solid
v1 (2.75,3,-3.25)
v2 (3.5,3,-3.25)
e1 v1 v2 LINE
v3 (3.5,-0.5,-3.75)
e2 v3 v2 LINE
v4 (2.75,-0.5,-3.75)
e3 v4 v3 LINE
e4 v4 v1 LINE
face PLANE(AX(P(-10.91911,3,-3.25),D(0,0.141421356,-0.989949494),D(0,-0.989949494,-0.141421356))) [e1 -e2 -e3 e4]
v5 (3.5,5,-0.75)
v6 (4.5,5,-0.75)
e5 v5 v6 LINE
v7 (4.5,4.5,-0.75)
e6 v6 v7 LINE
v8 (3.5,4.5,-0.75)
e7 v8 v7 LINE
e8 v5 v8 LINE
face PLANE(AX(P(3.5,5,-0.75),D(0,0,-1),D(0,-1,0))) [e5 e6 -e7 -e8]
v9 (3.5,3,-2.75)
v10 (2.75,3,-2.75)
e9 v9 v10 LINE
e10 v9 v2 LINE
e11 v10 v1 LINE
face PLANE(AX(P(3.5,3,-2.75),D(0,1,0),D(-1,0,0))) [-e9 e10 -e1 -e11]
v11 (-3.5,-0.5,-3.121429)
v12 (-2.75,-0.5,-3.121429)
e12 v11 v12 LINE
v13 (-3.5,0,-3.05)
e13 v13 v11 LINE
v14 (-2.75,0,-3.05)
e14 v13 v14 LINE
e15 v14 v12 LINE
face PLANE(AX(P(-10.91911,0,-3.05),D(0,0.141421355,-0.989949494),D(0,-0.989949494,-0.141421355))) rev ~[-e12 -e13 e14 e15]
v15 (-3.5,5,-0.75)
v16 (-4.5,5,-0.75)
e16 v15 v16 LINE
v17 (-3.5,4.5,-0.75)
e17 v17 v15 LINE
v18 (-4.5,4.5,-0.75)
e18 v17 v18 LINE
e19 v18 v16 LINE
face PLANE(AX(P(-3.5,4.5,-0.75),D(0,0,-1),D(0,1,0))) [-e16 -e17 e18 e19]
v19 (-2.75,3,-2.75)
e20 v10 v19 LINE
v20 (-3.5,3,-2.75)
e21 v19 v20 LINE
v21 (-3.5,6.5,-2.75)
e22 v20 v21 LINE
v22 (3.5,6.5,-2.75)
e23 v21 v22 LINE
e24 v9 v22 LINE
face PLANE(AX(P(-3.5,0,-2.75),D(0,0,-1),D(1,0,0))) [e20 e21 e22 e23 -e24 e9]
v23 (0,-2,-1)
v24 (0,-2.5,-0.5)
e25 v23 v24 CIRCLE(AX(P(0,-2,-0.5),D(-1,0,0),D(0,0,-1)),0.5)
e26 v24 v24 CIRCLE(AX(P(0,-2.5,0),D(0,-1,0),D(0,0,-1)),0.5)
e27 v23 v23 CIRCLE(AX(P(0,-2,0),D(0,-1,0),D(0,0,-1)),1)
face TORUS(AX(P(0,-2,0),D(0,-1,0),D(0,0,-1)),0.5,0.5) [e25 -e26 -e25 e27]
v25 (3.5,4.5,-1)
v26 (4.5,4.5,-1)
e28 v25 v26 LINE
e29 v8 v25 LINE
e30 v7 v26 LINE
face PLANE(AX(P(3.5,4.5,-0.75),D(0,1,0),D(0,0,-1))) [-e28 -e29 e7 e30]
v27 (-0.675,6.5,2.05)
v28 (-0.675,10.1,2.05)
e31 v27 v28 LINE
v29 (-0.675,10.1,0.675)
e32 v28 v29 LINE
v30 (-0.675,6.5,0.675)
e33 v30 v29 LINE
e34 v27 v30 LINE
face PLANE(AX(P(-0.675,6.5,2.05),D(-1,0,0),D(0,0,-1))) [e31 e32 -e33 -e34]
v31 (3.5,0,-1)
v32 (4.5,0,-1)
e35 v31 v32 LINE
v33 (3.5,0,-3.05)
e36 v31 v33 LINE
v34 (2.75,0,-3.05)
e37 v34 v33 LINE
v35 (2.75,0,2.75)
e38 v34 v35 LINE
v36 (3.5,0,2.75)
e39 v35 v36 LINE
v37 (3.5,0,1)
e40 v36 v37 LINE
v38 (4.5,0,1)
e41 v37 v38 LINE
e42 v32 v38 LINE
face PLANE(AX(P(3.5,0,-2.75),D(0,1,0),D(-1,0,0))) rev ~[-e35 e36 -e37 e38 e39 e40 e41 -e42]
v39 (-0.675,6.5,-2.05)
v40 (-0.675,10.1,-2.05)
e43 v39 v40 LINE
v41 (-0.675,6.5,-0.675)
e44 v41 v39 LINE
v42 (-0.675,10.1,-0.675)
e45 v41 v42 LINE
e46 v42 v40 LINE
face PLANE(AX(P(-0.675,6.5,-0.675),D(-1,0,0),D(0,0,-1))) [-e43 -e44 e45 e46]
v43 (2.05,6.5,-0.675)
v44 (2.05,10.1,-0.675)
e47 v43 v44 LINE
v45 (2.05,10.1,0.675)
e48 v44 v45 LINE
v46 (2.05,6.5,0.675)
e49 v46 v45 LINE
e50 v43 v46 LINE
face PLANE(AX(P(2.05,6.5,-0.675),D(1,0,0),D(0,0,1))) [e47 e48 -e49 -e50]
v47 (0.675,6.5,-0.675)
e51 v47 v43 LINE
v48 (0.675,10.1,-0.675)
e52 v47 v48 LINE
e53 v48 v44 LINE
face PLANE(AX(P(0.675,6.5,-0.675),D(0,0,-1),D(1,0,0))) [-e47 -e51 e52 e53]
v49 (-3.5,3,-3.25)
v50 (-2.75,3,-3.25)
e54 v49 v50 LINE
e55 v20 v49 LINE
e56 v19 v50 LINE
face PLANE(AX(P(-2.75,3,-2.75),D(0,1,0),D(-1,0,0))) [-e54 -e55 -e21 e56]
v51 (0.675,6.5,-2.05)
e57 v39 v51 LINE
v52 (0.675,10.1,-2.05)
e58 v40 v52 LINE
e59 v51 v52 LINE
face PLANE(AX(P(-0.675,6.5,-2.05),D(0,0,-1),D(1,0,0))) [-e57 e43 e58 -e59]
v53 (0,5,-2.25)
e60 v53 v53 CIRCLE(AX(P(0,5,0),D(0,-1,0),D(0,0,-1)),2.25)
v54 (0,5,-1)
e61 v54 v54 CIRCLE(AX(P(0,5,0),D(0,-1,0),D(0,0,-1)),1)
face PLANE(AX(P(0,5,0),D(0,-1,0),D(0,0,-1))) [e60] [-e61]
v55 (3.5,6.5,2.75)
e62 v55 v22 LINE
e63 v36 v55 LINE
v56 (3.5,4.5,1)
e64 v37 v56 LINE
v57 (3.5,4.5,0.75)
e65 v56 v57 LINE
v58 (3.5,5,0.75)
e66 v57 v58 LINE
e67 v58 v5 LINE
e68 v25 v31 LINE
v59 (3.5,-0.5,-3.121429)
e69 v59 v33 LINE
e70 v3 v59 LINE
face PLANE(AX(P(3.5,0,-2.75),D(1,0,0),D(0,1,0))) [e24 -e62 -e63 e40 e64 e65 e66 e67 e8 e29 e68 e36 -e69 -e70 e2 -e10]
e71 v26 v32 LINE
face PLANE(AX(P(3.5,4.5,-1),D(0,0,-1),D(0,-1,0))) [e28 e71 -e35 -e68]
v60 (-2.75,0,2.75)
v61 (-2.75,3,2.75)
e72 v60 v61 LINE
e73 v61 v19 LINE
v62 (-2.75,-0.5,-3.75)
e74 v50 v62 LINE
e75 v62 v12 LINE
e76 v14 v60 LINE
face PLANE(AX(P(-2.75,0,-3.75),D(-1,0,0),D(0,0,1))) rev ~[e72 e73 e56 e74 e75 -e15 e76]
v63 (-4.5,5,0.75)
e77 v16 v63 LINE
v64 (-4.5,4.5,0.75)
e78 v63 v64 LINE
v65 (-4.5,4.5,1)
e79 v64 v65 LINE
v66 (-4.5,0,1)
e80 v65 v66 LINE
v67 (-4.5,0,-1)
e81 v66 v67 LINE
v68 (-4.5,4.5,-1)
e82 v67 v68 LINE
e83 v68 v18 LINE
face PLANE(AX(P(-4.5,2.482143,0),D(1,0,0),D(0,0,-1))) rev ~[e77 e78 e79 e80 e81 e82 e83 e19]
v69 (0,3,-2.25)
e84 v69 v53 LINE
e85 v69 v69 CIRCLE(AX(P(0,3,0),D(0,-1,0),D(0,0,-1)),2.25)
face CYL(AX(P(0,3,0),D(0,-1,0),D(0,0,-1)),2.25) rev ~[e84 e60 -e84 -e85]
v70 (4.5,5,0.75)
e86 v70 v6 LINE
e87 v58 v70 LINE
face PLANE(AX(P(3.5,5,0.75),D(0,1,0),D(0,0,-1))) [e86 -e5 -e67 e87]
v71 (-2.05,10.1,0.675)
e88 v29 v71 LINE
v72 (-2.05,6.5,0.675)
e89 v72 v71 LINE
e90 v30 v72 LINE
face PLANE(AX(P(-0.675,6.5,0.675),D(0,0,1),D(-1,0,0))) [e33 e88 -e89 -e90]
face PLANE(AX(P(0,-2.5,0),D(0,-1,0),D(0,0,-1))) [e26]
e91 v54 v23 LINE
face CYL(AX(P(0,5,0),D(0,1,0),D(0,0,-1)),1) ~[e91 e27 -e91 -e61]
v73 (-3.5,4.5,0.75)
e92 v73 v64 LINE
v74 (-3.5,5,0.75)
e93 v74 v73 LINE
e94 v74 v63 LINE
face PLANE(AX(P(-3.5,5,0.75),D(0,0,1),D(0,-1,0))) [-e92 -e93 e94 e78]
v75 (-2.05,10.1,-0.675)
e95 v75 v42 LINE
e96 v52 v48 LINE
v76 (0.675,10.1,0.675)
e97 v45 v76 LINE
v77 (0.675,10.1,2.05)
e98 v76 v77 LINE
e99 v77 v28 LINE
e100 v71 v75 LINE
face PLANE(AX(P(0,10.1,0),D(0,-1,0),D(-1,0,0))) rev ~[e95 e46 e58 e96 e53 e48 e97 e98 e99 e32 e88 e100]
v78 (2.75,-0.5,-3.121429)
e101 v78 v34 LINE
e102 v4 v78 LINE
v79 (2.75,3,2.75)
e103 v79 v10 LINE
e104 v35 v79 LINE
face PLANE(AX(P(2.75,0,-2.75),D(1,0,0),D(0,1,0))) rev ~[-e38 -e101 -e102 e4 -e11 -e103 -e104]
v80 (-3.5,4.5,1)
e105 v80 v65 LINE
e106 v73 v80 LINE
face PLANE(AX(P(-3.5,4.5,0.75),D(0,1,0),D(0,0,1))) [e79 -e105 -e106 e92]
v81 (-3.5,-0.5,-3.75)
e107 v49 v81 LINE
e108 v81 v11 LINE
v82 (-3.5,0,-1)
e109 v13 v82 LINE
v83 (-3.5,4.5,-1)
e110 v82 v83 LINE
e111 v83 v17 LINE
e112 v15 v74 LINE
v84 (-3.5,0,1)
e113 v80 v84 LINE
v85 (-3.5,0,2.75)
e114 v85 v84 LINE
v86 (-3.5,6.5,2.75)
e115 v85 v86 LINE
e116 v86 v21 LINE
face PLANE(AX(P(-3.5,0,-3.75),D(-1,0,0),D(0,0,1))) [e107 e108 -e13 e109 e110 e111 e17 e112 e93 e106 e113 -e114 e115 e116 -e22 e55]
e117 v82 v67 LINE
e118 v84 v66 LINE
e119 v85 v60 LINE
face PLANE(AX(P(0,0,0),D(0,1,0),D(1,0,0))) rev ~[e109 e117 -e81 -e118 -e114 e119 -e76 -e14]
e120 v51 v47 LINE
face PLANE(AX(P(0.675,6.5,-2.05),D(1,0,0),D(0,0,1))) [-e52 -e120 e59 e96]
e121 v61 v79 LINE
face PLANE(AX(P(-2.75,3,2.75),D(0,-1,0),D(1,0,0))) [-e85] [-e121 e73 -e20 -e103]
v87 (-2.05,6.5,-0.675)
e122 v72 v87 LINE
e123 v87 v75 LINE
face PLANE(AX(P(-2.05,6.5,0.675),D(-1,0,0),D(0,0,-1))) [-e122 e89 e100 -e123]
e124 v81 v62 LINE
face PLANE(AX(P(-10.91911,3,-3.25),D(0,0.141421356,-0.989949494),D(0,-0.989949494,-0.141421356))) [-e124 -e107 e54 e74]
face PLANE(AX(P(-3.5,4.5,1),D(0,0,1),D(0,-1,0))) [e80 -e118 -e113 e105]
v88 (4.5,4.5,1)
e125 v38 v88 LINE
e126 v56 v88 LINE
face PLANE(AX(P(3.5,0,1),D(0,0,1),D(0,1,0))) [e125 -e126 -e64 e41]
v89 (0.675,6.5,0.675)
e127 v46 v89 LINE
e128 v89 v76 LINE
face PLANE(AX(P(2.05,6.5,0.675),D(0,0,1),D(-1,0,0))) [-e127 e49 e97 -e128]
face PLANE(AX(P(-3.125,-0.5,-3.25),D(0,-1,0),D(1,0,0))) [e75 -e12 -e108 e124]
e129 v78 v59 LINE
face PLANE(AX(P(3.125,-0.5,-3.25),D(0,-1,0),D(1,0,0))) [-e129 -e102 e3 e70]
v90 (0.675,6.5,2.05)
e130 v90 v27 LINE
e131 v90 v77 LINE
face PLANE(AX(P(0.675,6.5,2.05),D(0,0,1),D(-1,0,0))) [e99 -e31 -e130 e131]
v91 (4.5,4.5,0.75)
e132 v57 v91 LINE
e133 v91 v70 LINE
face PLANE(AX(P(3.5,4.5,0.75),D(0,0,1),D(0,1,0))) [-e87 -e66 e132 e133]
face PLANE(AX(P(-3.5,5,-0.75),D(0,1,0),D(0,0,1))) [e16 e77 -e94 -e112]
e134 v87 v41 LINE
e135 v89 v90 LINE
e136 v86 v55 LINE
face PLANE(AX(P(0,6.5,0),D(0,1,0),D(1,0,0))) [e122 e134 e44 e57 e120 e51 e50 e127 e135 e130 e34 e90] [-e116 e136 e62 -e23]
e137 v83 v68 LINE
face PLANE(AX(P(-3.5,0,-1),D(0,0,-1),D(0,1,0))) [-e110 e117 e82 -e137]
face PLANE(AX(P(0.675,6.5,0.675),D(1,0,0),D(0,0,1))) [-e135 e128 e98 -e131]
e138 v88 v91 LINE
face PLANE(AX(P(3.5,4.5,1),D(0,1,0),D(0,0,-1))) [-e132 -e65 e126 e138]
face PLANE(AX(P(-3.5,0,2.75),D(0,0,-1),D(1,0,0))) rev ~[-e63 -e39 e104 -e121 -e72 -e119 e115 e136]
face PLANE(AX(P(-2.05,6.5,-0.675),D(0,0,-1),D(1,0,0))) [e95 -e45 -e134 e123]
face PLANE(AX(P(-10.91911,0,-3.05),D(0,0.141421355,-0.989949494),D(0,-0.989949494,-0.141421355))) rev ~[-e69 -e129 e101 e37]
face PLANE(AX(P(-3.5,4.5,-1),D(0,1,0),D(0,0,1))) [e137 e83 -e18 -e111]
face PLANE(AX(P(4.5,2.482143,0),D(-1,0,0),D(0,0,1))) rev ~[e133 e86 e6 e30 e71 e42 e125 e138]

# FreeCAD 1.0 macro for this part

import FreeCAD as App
import Part
import Sketcher
from FreeCAD import Vector
Q = App.Units.Quantity


def edges_at(feature, points):
    """Names of the edges that pass closest to the given points."""
    edges = feature.Shape.Edges
    near = lambda p: min(range(len(edges)), key=lambda i: edges[i].distToShape(Part.Vertex(*p))[0])
    return sorted({f"Edge{near(p) + 1}" for p in points})


def add_polygon(sketch, points):
    """Adds a closed chain of lines whose ends are joined by coincident constraints."""
    first, n = sketch.GeometryCount, len(points)
    for a, b in zip(points, points[1:] + points[:1]):
        sketch.addGeometry(Part.LineSegment(App.Vector(*a, 0), App.Vector(*b, 0)), False)
    for i in range(n):
        sketch.addConstraint(Sketcher.Constraint("Coincident", first + i, 2, first + (i + 1) % n, 1))

doc = App.newDocument("Part")
body = doc.addObject("PartDesign::Body", "Body")

# Sketch on XZ plane
sketch1 = body.newObject("Sketcher::SketchObject", "Sketch")
sketch1.AttachmentSupport = (doc.getObject("XZ_Plane"), [""])
sketch1.MapMode = "FlatFace"
add_polygon(sketch1, [(-4, -3), (-4, 3), (4, 3), (4, -3)])  # lines 0-3
sketch1.addConstraint([
    Sketcher.Constraint("Vertical", 0),
    Sketcher.Constraint("Horizontal", 1),
    Sketcher.Constraint("Vertical", 2),
    Sketcher.Constraint("Horizontal", 3),
    Sketcher.Constraint("Symmetric", 0, 2, 2, 2, -1, 1),
    Sketcher.Constraint("DistanceX", 1, 1, 1, 2, Q("7 mm")),
    Sketcher.Constraint("DistanceY", 0, 1, 0, 2, Q("5.5 mm")),
])
pad1 = body.newObject("PartDesign::Pad", "Pad")
pad1.Profile = sketch1
pad1.Length = 6.5
pad1.Reversed = True

# Sketch on XY plane
sketch2 = body.newObject("Sketcher::SketchObject", "Sketch001")
sketch2.AttachmentSupport = (doc.getObject("XY_Plane"), [""])
sketch2.MapMode = "FlatFace"
sketch2.AttachmentOffset = App.Placement(Vector(0, 0, 2.75), App.Rotation())
add_polygon(sketch2, [(-2.8, 3), (-2.8, 0), (2.8, 0), (2.8, 3)])  # lines 0-3
sketch2.addConstraint([
    Sketcher.Constraint("Vertical", 0),
    Sketcher.Constraint("Horizontal", 1),
    Sketcher.Constraint("Vertical", 2),
    Sketcher.Constraint("Horizontal", 3),
    Sketcher.Constraint("Symmetric", 0, 2, 1, 2, -1, 1),
    Sketcher.Constraint("DistanceY", 0, 2, 0, 1, Q("3 mm")),
    Sketcher.Constraint("DistanceX", 1, 1, 1, 2, Q("5.5 mm")),
])
pocket1 = body.newObject("PartDesign::Pocket", "Pocket")
pocket1.Profile = sketch2
pocket1.Type = "ThroughAll"

# Sketch on YZ plane
sketch3 = body.newObject("Sketcher::SketchObject", "Sketch002")
sketch3.AttachmentSupport = (doc.getObject("YZ_Plane"), [""])
sketch3.MapMode = "FlatFace"
sketch3.AttachmentOffset = App.Placement(Vector(0, 0, -3.5), App.Rotation())
add_polygon(sketch3, [(4.5, -0.75), (4.5, -1), (0, -1), (0, 1), (4.5, 1), (4.5, 0.75), (5, 0.75), (5, -0.75)])  # lines 0-7
sketch3.addConstraint([
    Sketcher.Constraint("Vertical", 0),
    Sketcher.Constraint("Horizontal", 1),
    Sketcher.Constraint("Vertical", 2),
    Sketcher.Constraint("Horizontal", 3),
    Sketcher.Constraint("Vertical", 4),
    Sketcher.Constraint("Horizontal", 5),
    Sketcher.Constraint("Vertical", 6),
    Sketcher.Constraint("Horizontal", 7),
    Sketcher.Constraint("Symmetric", 1, 2, 2, 2, -1, 1),
    Sketcher.Constraint("Symmetric", 4, 2, 7, 2, -1),
    Sketcher.Constraint("DistanceY", 2, 1, 2, 2, Q("2 mm")),
    Sketcher.Constraint("DistanceX", 1, 2, 1, 1, Q("4.5 mm")),
    Sketcher.Constraint("DistanceX", 5, 1, 5, 2, Q("0.5 mm")),
    Sketcher.Constraint("DistanceY", 6, 2, 6, 1, Q("1.5 mm")),
])
pad2 = body.newObject("PartDesign::Pad", "Pad001")
pad2.Profile = sketch3
pad2.Length = 1
pad2.Reversed = True

# Sketch on YZ plane
sketch4 = body.newObject("Sketcher::SketchObject", "Sketch003")
sketch4.AttachmentSupport = (doc.getObject("YZ_Plane"), [""])
sketch4.MapMode = "FlatFace"
sketch4.AttachmentOffset = App.Placement(Vector(0, 0, 3.5), App.Rotation())
add_polygon(sketch4, [(4.5, 1), (0, 1), (0, -1), (4.5, -1), (4.5, -0.75), (5, -0.75), (5, 0.75), (4.5, 0.75)])  # lines 0-7
sketch4.addConstraint([
    Sketcher.Constraint("Horizontal", 0),
    Sketcher.Constraint("Vertical", 1),
    Sketcher.Constraint("Horizontal", 2),
    Sketcher.Constraint("Vertical", 3),
    Sketcher.Constraint("Horizontal", 4),
    Sketcher.Constraint("Vertical", 5),
    Sketcher.Constraint("Horizontal", 6),
    Sketcher.Constraint("Vertical", 7),
    Sketcher.Constraint("Symmetric", 0, 2, 1, 2, -1, 1),
    Sketcher.Constraint("Symmetric", 3, 2, 6, 2, -1),
    Sketcher.Constraint("DistanceY", 1, 2, 1, 1, Q("2 mm")),
    Sketcher.Constraint("DistanceX", 0, 2, 0, 1, Q("4.5 mm")),
    Sketcher.Constraint("DistanceX", 4, 1, 4, 2, Q("0.5 mm")),
    Sketcher.Constraint("DistanceY", 5, 1, 5, 2, Q("1.5 mm")),
])
pad3 = body.newObject("PartDesign::Pad", "Pad002")
pad3.Profile = sketch4
pad3.Length = 1

# Sketch on XZ plane
sketch5 = body.newObject("Sketcher::SketchObject", "Sketch004")
sketch5.AttachmentSupport = (doc.getObject("XZ_Plane"), [""])
sketch5.MapMode = "FlatFace"
sketch5.AttachmentOffset = App.Placement(Vector(0, 0, -3), App.Rotation())
sketch5.addGeometry(Part.Circle(Vector(0, 0, 0), Vector(0, 0, 1), 2.2), False)
sketch5.addConstraint([
    Sketcher.Constraint("Coincident", 0, 3, -1, 1),
    Sketcher.Constraint("Diameter", 0, Q("4.5 mm")),
])
pocket2 = body.newObject("PartDesign::Pocket", "Pocket001")
pocket2.Profile = sketch5
pocket2.Length = 2

# Sketch on XZ plane
sketch6 = body.newObject("Sketcher::SketchObject", "Sketch005")
sketch6.AttachmentSupport = (doc.getObject("XZ_Plane"), [""])
sketch6.MapMode = "FlatFace"
sketch6.AttachmentOffset = App.Placement(Vector(0, 0, -6.5), App.Rotation())
add_polygon(sketch6, [(-2, -0.7), (-2, 0.7), (-0.7, 0.7), (-0.7, 2), (0.7, 2), (0.7, 0.7), (2, 0.7), (2, -0.7), (0.7, -0.7), (0.7, -2), (-0.7, -2), (-0.7, -0.7)])  # lines 0-11
sketch6.addConstraint([
    Sketcher.Constraint("Vertical", 0),
    Sketcher.Constraint("Horizontal", 1),
    Sketcher.Constraint("Vertical", 2),
    Sketcher.Constraint("Horizontal", 3),
    Sketcher.Constraint("Vertical", 4),
    Sketcher.Constraint("Horizontal", 5),
    Sketcher.Constraint("Vertical", 6),
    Sketcher.Constraint("Horizontal", 7),
    Sketcher.Constraint("Vertical", 8),
    Sketcher.Constraint("Horizontal", 9),
    Sketcher.Constraint("Vertical", 10),
    Sketcher.Constraint("Horizontal", 11),
    Sketcher.Constraint("Symmetric", 0, 2, 6, 2, -1, 1),
    Sketcher.Constraint("Symmetric", 2, 2, 8, 2, -1, 1),
    Sketcher.Constraint("Symmetric", 4, 2, 10, 2, -1, 1),
    Sketcher.Constraint("Symmetric", 1, 2, 4, 2, -2),
    Sketcher.Constraint("Equal", 9, 0),
    Sketcher.Constraint("Equal", 11, 2),
    Sketcher.Constraint("DistanceX", 3, 1, 3, 2, Q("1.35 mm")),
    Sketcher.Constraint("DistanceX", 0, 2, 5, 2, Q("4.1 mm")),
])
pad4 = body.newObject("PartDesign::Pad", "Pad003")
pad4.Profile = sketch6
pad4.Length = 3.6
pad4.Reversed = True

# Sketch on XZ plane
sketch7 = body.newObject("Sketcher::SketchObject", "Sketch006")
sketch7.AttachmentSupport = (doc.getObject("XZ_Plane"), [""])
sketch7.MapMode = "FlatFace"
sketch7.AttachmentOffset = App.Placement(Vector(0, 0, -5), App.Rotation())
sketch7.addGeometry(Part.Circle(Vector(0, 0, 0), Vector(0, 0, 1), 1), False)
sketch7.addConstraint([
    Sketcher.Constraint("Coincident", 0, 3, -1, 1),
    Sketcher.Constraint("Diameter", 0, Q("2 mm")),
])
pad5 = body.newObject("PartDesign::Pad", "Pad004")
pad5.Profile = sketch7
pad5.Length = 7.5
doc.recompute()

fillet = body.newObject("PartDesign::Fillet", "Fillet")
fillet.Base = (pad5, edges_at(pad5, [(0, -2.5, 1)]))
fillet.Radius = 0.5

# Sketch on XY plane
sketch8 = body.newObject("Sketcher::SketchObject", "Sketch007")
sketch8.AttachmentSupport = (doc.getObject("XY_Plane"), [""])
sketch8.MapMode = "FlatFace"
sketch8.AttachmentOffset = App.Placement(Vector(0, 0, -2.75), App.Rotation())
add_polygon(sketch8, [(3.5, 3), (3.5, 0), (2.8, 0), (2.8, 3)])  # lines 0-3
add_polygon(sketch8, [(-2.8, 3), (-2.8, 0), (-3.5, 0), (-3.5, 3)])  # lines 4-7
sketch8.addConstraint([
    Sketcher.Constraint("Vertical", 0),
    Sketcher.Constraint("Horizontal", 1),
    Sketcher.Constraint("Vertical", 2),
    Sketcher.Constraint("Horizontal", 3),
    Sketcher.Constraint("Vertical", 4),
    Sketcher.Constraint("Horizontal", 5),
    Sketcher.Constraint("Vertical", 6),
    Sketcher.Constraint("Horizontal", 7),
    Sketcher.Constraint("Symmetric", 1, 2, 4, 2, -1, 1),
    Sketcher.Constraint("Symmetric", 0, 2, 5, 2, -2),
    Sketcher.Constraint("Horizontal", 3, 2, 6, 2),
    Sketcher.Constraint("DistanceY", 0, 2, 0, 1, Q("3 mm")),
    Sketcher.Constraint("DistanceX", 5, 2, 0, 2, Q("7 mm")),
    Sketcher.Constraint("DistanceX", 1, 2, 1, 1, Q("0.75 mm")),
])
pad6 = body.newObject("PartDesign::Pad", "Pad005")
pad6.Profile = sketch8
pad6.Length = 1
pad6.Reversed = True

# Sketch on XZ plane
sketch9 = body.newObject("Sketcher::SketchObject", "Sketch008")
sketch9.AttachmentSupport = (doc.getObject("XZ_Plane"), [""])
sketch9.MapMode = "FlatFace"
add_polygon(sketch9, [(-3.5, -2.8), (-3.5, -3.8), (-2.8, -3.8), (-2.8, -2.8)])  # lines 0-3
add_polygon(sketch9, [(2.8, -2.8), (2.8, -3.8), (3.5, -3.8), (3.5, -2.8)])  # lines 4-7
sketch9.addConstraint([
    Sketcher.Constraint("Vertical", 0),
    Sketcher.Constraint("Horizontal", 1),
    Sketcher.Constraint("Vertical", 2),
    Sketcher.Constraint("Horizontal", 3),
    Sketcher.Constraint("Vertical", 4),
    Sketcher.Constraint("Horizontal", 5),
    Sketcher.Constraint("Vertical", 6),
    Sketcher.Constraint("Horizontal", 7),
    Sketcher.Constraint("Symmetric", 1, 2, 4, 2, -2),
    Sketcher.Constraint("Symmetric", 3, 2, 6, 2, -2),
    Sketcher.Constraint("DistanceY", 0, 2, 0, 1, Q("1 mm")),
    Sketcher.Constraint("DistanceX", 0, 2, 5, 2, Q("7 mm")),
    Sketcher.Constraint("DistanceX", 1, 1, 1, 2, Q("0.75 mm")),
    Sketcher.Constraint("DistanceY", 0, 2, -1, 1, Q("3.75 mm")),
])
pad7 = body.newObject("PartDesign::Pad", "Pad006")
pad7.Profile = sketch9
pad7.Length = 0.5

# Sketch on YZ plane
sketch10 = body.newObject("Sketcher::SketchObject", "Sketch009")
sketch10.AttachmentSupport = (doc.getObject("YZ_Plane"), [""])
sketch10.MapMode = "FlatFace"
sketch10.AttachmentOffset = App.Placement(Vector(0, 0, 3.5), App.Rotation())
add_polygon(sketch10, [(3, -3.75), (3, -3.25), (-0.5, -3.75)])  # lines 0-2
add_polygon(sketch10, [(0, -3.05), (0, -2.75), (-0.5, -2.75), (-0.5, -3.12)])  # lines 3-6
sketch10.addConstraint([
    Sketcher.Constraint("Vertical", 0),
    Sketcher.Constraint("Horizontal", 2),
    Sketcher.Constraint("Vertical", 3),
    Sketcher.Constraint("Horizontal", 4),
    Sketcher.Constraint("Vertical", 5),
    Sketcher.Constraint("PointOnObject", 3, 2, -2),
    Sketcher.Constraint("Parallel", 1, 6),
    Sketcher.Constraint("Vertical", 1, 2, 4, 2),
    Sketcher.Constraint("Equal", 4, 0),
    Sketcher.Constraint("DistanceX", 2, 1, 2, 2, Q("3.5 mm")),
    Sketcher.Constraint("DistanceX", 4, 2, 4, 1, Q("0.5 mm")),
    Sketcher.Constraint("DistanceY", 3, 1, 3, 2, Q("0.3 mm")),
    Sketcher.Constraint("DistanceY", 1, 2, 3, 2, Q("1 mm")),
    Sketcher.Constraint("DistanceY", 0, 2, -1, 1, Q("3.25 mm")),
])
pocket3 = body.newObject("PartDesign::Pocket", "Pocket002")
pocket3.Profile = sketch10
pocket3.Type = "ThroughAll"
pocket3.Midplane = True

doc.recompute()
